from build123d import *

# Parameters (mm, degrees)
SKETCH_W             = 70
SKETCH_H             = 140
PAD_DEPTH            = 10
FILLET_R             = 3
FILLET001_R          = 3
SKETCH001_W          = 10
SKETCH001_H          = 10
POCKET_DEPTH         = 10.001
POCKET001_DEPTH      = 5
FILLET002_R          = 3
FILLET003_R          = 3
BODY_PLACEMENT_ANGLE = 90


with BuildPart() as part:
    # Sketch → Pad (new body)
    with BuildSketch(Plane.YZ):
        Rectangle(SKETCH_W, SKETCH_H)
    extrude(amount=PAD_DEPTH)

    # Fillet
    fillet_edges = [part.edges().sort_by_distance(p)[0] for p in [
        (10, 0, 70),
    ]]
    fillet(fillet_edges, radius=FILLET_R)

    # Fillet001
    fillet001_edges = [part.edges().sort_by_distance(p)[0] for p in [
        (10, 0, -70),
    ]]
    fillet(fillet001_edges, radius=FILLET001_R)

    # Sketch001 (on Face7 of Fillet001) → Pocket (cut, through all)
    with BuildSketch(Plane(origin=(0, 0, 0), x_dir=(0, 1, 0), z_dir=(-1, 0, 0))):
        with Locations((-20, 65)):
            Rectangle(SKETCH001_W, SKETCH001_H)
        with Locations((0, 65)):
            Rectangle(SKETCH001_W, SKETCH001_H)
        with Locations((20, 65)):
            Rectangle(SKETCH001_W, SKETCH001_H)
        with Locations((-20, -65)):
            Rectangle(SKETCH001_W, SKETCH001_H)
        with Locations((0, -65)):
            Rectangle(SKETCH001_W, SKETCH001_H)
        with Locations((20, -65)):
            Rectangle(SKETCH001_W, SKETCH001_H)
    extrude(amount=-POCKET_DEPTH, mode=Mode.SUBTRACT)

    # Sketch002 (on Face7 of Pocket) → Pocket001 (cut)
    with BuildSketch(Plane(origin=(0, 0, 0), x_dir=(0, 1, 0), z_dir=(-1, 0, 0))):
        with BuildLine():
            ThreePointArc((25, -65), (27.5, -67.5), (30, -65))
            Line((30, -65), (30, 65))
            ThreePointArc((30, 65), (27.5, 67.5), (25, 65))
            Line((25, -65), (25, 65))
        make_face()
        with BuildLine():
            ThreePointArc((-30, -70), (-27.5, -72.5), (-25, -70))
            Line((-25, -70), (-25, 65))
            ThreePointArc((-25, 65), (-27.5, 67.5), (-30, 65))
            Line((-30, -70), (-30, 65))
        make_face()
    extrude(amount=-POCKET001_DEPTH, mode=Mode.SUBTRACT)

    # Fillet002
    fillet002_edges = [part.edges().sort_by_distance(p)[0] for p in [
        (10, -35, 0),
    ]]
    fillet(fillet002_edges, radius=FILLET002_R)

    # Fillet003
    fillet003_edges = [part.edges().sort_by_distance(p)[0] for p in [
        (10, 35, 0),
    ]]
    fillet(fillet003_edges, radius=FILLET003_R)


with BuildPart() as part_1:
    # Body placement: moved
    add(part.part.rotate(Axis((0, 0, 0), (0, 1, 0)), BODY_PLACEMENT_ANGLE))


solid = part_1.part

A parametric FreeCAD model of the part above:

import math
import FreeCAD as App
import Part
import Sketcher
from FreeCAD import Vector
Q = App.Units.Quantity


def edges_at(feature, points):
    """Names of the edges that pass closest to the given points."""
    edges = feature.Shape.Edges
    near = lambda p: min(range(len(edges)), key=lambda i: edges[i].distToShape(Part.Vertex(*p))[0])
    return sorted({f"Edge{near(p) + 1}" for p in points})

doc = App.newDocument("Part")
params = doc.addObject("Spreadsheet::Sheet", "Params")
for row, (alias, value) in enumerate([
    ("sketch1_width", "70 mm"),
    ("sketch1_height", "140 mm"),
    ("pad1_length", "10 mm"),
    ("fillet_radius", "3 mm"),
    ("fillet2_radius", "3 mm"),
    ("sketch2_width", "10 mm"),
    ("sketch3_radius", "2.5 mm"),
    ("sketch3_height", "130 mm"),
    ("sketch3_height2", "135 mm"),
    ("pocket2_length", "5 mm"),
    ("fillet3_radius", "3 mm"),
    ("fillet4_radius", "3 mm"),
], start=1):
    params.set(f"A{row}", alias)
    params.set(f"B{row}", "=" + value)
    params.setAlias(f"B{row}", alias)

body = doc.addObject("PartDesign::Body", "Body")

sketch1 = body.newObject("Sketcher::SketchObject", "Sketch")
sketch1.AttachmentSupport = (doc.getObject("YZ_Plane"), [""])
sketch1.MapMode = "FlatFace"
sketch1.addGeometry(Part.LineSegment(Vector(-35, 70, 0), Vector(-35, -70, 0)), False)
sketch1.addGeometry(Part.LineSegment(Vector(-35, -70, 0), Vector(35, -70, 0)), False)
sketch1.addGeometry(Part.LineSegment(Vector(35, -70, 0), Vector(35, 70, 0)), False)
sketch1.addGeometry(Part.LineSegment(Vector(35, 70, 0), Vector(-35, 70, 0)), False)
sketch1.addConstraint(Sketcher.Constraint("Coincident", 0, 2, 1, 1))
sketch1.addConstraint(Sketcher.Constraint("Coincident", 1, 2, 2, 1))
sketch1.addConstraint(Sketcher.Constraint("Coincident", 2, 2, 3, 1))
sketch1.addConstraint(Sketcher.Constraint("Coincident", 3, 2, 0, 1))
sketch1.addConstraint(Sketcher.Constraint("Vertical", 0))
sketch1.addConstraint(Sketcher.Constraint("Horizontal", 1))
sketch1.addConstraint(Sketcher.Constraint("Vertical", 2))
sketch1.addConstraint(Sketcher.Constraint("Horizontal", 3))
sketch1.addConstraint(Sketcher.Constraint("Symmetric", 0, 2, 2, 2, -1, 1))
sketch1.addConstraint(Sketcher.Constraint("DistanceX", 1, 1, 1, 2, Q("70 mm")))
sketch1.addConstraint(Sketcher.Constraint("DistanceY", 0, 2, 0, 1, Q("140 mm")))
sketch1.setExpression("Constraints[9]", "Params.sketch1_width")
sketch1.setExpression("Constraints[10]", "Params.sketch1_height")
pad1 = body.newObject("PartDesign::Pad", "Pad")
pad1.Profile = sketch1
pad1.setExpression("Length", "Params.pad1_length")
doc.recompute()

fillet = body.newObject("PartDesign::Fillet", "Fillet")
fillet.Base = (pad1, edges_at(pad1, [(10, 0, 70)]))
fillet.setExpression("Radius", "Params.fillet_radius")
doc.recompute()

fillet2 = body.newObject("PartDesign::Fillet", "Fillet001")
fillet2.Base = (fillet, edges_at(fillet, [(10, 0, -70)]))
fillet2.setExpression("Radius", "Params.fillet2_radius")

sketch2 = body.newObject("Sketcher::SketchObject", "Sketch001")
sketch2.AttachmentSupport = (doc.getObject("YZ_Plane"), [""])
sketch2.MapMode = "FlatFace"
sketch2.addGeometry(Part.LineSegment(Vector(-25, -70, 0), Vector(-25, -60, 0)), False)
sketch2.addGeometry(Part.LineSegment(Vector(-25, -60, 0), Vector(-15, -60, 0)), False)
sketch2.addGeometry(Part.LineSegment(Vector(-15, -60, 0), Vector(-15, -70, 0)), False)
sketch2.addGeometry(Part.LineSegment(Vector(-15, -70, 0), Vector(-25, -70, 0)), False)
sketch2.addGeometry(Part.LineSegment(Vector(-5, -70, 0), Vector(-5, -60, 0)), False)
sketch2.addGeometry(Part.LineSegment(Vector(-5, -60, 0), Vector(5, -60, 0)), False)
sketch2.addGeometry(Part.LineSegment(Vector(5, -60, 0), Vector(5, -70, 0)), False)
sketch2.addGeometry(Part.LineSegment(Vector(5, -70, 0), Vector(-5, -70, 0)), False)
sketch2.addGeometry(Part.LineSegment(Vector(15, -70, 0), Vector(15, -60, 0)), False)
sketch2.addGeometry(Part.LineSegment(Vector(15, -60, 0), Vector(25, -60, 0)), False)
sketch2.addGeometry(Part.LineSegment(Vector(25, -60, 0), Vector(25, -70, 0)), False)
sketch2.addGeometry(Part.LineSegment(Vector(25, -70, 0), Vector(15, -70, 0)), False)
sketch2.addGeometry(Part.LineSegment(Vector(-25, 60, 0), Vector(-25, 70, 0)), False)
sketch2.addGeometry(Part.LineSegment(Vector(-25, 70, 0), Vector(-15, 70, 0)), False)
sketch2.addGeometry(Part.LineSegment(Vector(-15, 70, 0), Vector(-15, 60, 0)), False)
sketch2.addGeometry(Part.LineSegment(Vector(-15, 60, 0), Vector(-25, 60, 0)), False)
sketch2.addGeometry(Part.LineSegment(Vector(-5, 60, 0), Vector(-5, 70, 0)), False)
sketch2.addGeometry(Part.LineSegment(Vector(-5, 70, 0), Vector(5, 70, 0)), False)
sketch2.addGeometry(Part.LineSegment(Vector(5, 70, 0), Vector(5, 60, 0)), False)
sketch2.addGeometry(Part.LineSegment(Vector(5, 60, 0), Vector(-5, 60, 0)), False)
sketch2.addGeometry(Part.LineSegment(Vector(15, 60, 0), Vector(15, 70, 0)), False)
sketch2.addGeometry(Part.LineSegment(Vector(15, 70, 0), Vector(25, 70, 0)), False)
sketch2.addGeometry(Part.LineSegment(Vector(25, 70, 0), Vector(25, 60, 0)), False)
sketch2.addGeometry(Part.LineSegment(Vector(25, 60, 0), Vector(15, 60, 0)), False)
sketch2.addConstraint(Sketcher.Constraint("Coincident", 0, 2, 1, 1))
sketch2.addConstraint(Sketcher.Constraint("Coincident", 1, 2, 2, 1))
sketch2.addConstraint(Sketcher.Constraint("Coincident", 2, 2, 3, 1))
sketch2.addConstraint(Sketcher.Constraint("Coincident", 3, 2, 0, 1))
sketch2.addConstraint(Sketcher.Constraint("Coincident", 4, 2, 5, 1))
sketch2.addConstraint(Sketcher.Constraint("Coincident", 5, 2, 6, 1))
sketch2.addConstraint(Sketcher.Constraint("Coincident", 6, 2, 7, 1))
sketch2.addConstraint(Sketcher.Constraint("Coincident", 7, 2, 4, 1))
sketch2.addConstraint(Sketcher.Constraint("Coincident", 8, 2, 9, 1))
sketch2.addConstraint(Sketcher.Constraint("Coincident", 9, 2, 10, 1))
sketch2.addConstraint(Sketcher.Constraint("Coincident", 10, 2, 11, 1))
sketch2.addConstraint(Sketcher.Constraint("Coincident", 11, 2, 8, 1))
sketch2.addConstraint(Sketcher.Constraint("Coincident", 12, 2, 13, 1))
sketch2.addConstraint(Sketcher.Constraint("Coincident", 13, 2, 14, 1))
sketch2.addConstraint(Sketcher.Constraint("Coincident", 14, 2, 15, 1))
sketch2.addConstraint(Sketcher.Constraint("Coincident", 15, 2, 12, 1))
sketch2.addConstraint(Sketcher.Constraint("Coincident", 16, 2, 17, 1))
sketch2.addConstraint(Sketcher.Constraint("Coincident", 17, 2, 18, 1))
sketch2.addConstraint(Sketcher.Constraint("Coincident", 18, 2, 19, 1))
sketch2.addConstraint(Sketcher.Constraint("Coincident", 19, 2, 16, 1))
sketch2.addConstraint(Sketcher.Constraint("Coincident", 20, 2, 21, 1))
sketch2.addConstraint(Sketcher.Constraint("Coincident", 21, 2, 22, 1))
sketch2.addConstraint(Sketcher.Constraint("Coincident", 22, 2, 23, 1))
sketch2.addConstraint(Sketcher.Constraint("Coincident", 23, 2, 20, 1))
sketch2.addConstraint(Sketcher.Constraint("Vertical", 0))
sketch2.addConstraint(Sketcher.Constraint("Horizontal", 1))
sketch2.addConstraint(Sketcher.Constraint("Vertical", 2))
sketch2.addConstraint(Sketcher.Constraint("Horizontal", 3))
sketch2.addConstraint(Sketcher.Constraint("Vertical", 4))
sketch2.addConstraint(Sketcher.Constraint("Horizontal", 5))
sketch2.addConstraint(Sketcher.Constraint("Vertical", 6))
sketch2.addConstraint(Sketcher.Constraint("Horizontal", 7))
sketch2.addConstraint(Sketcher.Constraint("Vertical", 8))
sketch2.addConstraint(Sketcher.Constraint("Horizontal", 9))
sketch2.addConstraint(Sketcher.Constraint("Vertical", 10))
sketch2.addConstraint(Sketcher.Constraint("Horizontal", 11))
sketch2.addConstraint(Sketcher.Constraint("Vertical", 12))
sketch2.addConstraint(Sketcher.Constraint("Horizontal", 13))
sketch2.addConstraint(Sketcher.Constraint("Vertical", 14))
sketch2.addConstraint(Sketcher.Constraint("Horizontal", 15))
sketch2.addConstraint(Sketcher.Constraint("Vertical", 16))
sketch2.addConstraint(Sketcher.Constraint("Horizontal", 17))
sketch2.addConstraint(Sketcher.Constraint("Vertical", 18))
sketch2.addConstraint(Sketcher.Constraint("Horizontal", 19))
sketch2.addConstraint(Sketcher.Constraint("Vertical", 20))
sketch2.addConstraint(Sketcher.Constraint("Horizontal", 21))
sketch2.addConstraint(Sketcher.Constraint("Vertical", 22))
sketch2.addConstraint(Sketcher.Constraint("Horizontal", 23))
sketch2.addConstraint(Sketcher.Constraint("Symmetric", 10, 2, 12, 2, -1, 1))
sketch2.addConstraint(Sketcher.Constraint("Symmetric", 8, 2, 14, 2, -1, 1))
sketch2.addConstraint(Sketcher.Constraint("Symmetric", 6, 2, 16, 2, -1, 1))
sketch2.addConstraint(Sketcher.Constraint("Symmetric", 4, 2, 18, 2, -1, 1))
sketch2.addConstraint(Sketcher.Constraint("Symmetric", 2, 2, 20, 2, -1, 1))
sketch2.addConstraint(Sketcher.Constraint("Symmetric", 0, 2, 22, 2, -1, 1))
sketch2.addConstraint(Sketcher.Constraint("Symmetric", 1, 2, 8, 2, -2))
sketch2.addConstraint(Sketcher.Constraint("Symmetric", 3, 2, 10, 2, -2))
sketch2.addConstraint(Sketcher.Constraint("Horizontal", 1, 2, 4, 2))
sketch2.addConstraint(Sketcher.Constraint("Horizontal", 3, 2, 6, 2))
sketch2.addConstraint(Sketcher.Constraint("Vertical", 7, 2, 16, 2))
sketch2.addConstraint(Sketcher.Constraint("Equal", 3, 5))
sketch2.addConstraint(Sketcher.Constraint("Equal", 23, 0))
sketch2.addConstraint(Sketcher.Constraint("DistanceX", 1, 1, 1, 2, Q("10 mm")))
sketch2.addConstraint(Sketcher.Constraint("DistanceX", 0, 2, -1, 1, Q("25 mm")))
sketch2.addConstraint(Sketcher.Constraint("DistanceY", 0, 2, -1, 1, Q("60 mm")))
sketch2.setExpression("Constraints[61]", "Params.sketch2_width")
pocket1 = body.newObject("PartDesign::Pocket", "Pocket")
pocket1.Profile = sketch2
pocket1.Type = "ThroughAll"
pocket1.Reversed = True

sketch3 = body.newObject("Sketcher::SketchObject", "Sketch002")
sketch3.AttachmentSupport = (doc.getObject("YZ_Plane"), [""])
sketch3.MapMode = "FlatFace"
sketch3.addGeometry(Part.ArcOfCircle(Part.Circle(Vector(27.5, 65, 0), Vector(0, 0, 1), 2.5), math.radians(0), math.radians(180)), False)
sketch3.addGeometry(Part.LineSegment(Vector(30, 65, 0), Vector(30, -65, 0)), False)
sketch3.addGeometry(Part.ArcOfCircle(Part.Circle(Vector(27.5, -65, 0), Vector(0, 0, 1), 2.5), math.radians(180), math.radians(360)), False)
sketch3.addGeometry(Part.LineSegment(Vector(25, -65, 0), Vector(25, 65, 0)), False)
sketch3.addGeometry(Part.ArcOfCircle(Part.Circle(Vector(-27.5, 70, 0), Vector(0, 0, 1), 2.5), math.radians(0), math.radians(180)), False)
sketch3.addGeometry(Part.LineSegment(Vector(-25, 70, 0), Vector(-25, -65, 0)), False)
sketch3.addGeometry(Part.ArcOfCircle(Part.Circle(Vector(-27.5, -65, 0), Vector(0, 0, 1), 2.5), math.radians(180), math.radians(360)), False)
sketch3.addGeometry(Part.LineSegment(Vector(-30, -65, 0), Vector(-30, 70, 0)), False)
sketch3.addConstraint(Sketcher.Constraint("Tangent", 0, 1, 1, 1))
sketch3.addConstraint(Sketcher.Constraint("Tangent", 1, 2, 2, 2))
sketch3.addConstraint(Sketcher.Constraint("Tangent", 2, 1, 3, 1))
sketch3.addConstraint(Sketcher.Constraint("Tangent", 3, 2, 0, 2))
sketch3.addConstraint(Sketcher.Constraint("Tangent", 4, 1, 5, 1))
sketch3.addConstraint(Sketcher.Constraint("Tangent", 5, 2, 6, 2))
sketch3.addConstraint(Sketcher.Constraint("Tangent", 6, 1, 7, 1))
sketch3.addConstraint(Sketcher.Constraint("Tangent", 7, 2, 4, 2))
sketch3.addConstraint(Sketcher.Constraint("Vertical", 1))
sketch3.addConstraint(Sketcher.Constraint("Vertical", 3))
sketch3.addConstraint(Sketcher.Constraint("Vertical", 5))
sketch3.addConstraint(Sketcher.Constraint("Vertical", 7))
sketch3.addConstraint(Sketcher.Constraint("Equal", 2, 4))
sketch3.addConstraint(Sketcher.Constraint("Symmetric", 0, 3, 6, 3, -1, 1))
sketch3.addConstraint(Sketcher.Constraint("Horizontal", 2, 3, 6, 3))
sketch3.addConstraint(Sketcher.Constraint("Radius", 0, Q("2.5 mm")))
sketch3.addConstraint(Sketcher.Constraint("DistanceY", 1, 2, 1, 1, Q("130 mm")))
sketch3.addConstraint(Sketcher.Constraint("DistanceY", 5, 2, 5, 1, Q("135 mm")))
sketch3.addConstraint(Sketcher.Constraint("DistanceX", -1, 1, 0, 1, Q("30 mm")))
sketch3.setExpression("Constraints[15]", "Params.sketch3_radius")
sketch3.setExpression("Constraints[16]", "Params.sketch3_height")
sketch3.setExpression("Constraints[17]", "Params.sketch3_height2")
pocket2 = body.newObject("PartDesign::Pocket", "Pocket001")
pocket2.Profile = sketch3
pocket2.setExpression("Length", "Params.pocket2_length")
pocket2.Reversed = True
doc.recompute()

fillet3 = body.newObject("PartDesign::Fillet", "Fillet002")
fillet3.Base = (pocket2, edges_at(pocket2, [(10, -35, 0)]))
fillet3.setExpression("Radius", "Params.fillet3_radius")
doc.recompute()

fillet4 = body.newObject("PartDesign::Fillet", "Fillet003")
fillet4.Base = (fillet3, edges_at(fillet3, [(10, 35, 0)]))
fillet4.setExpression("Radius", "Params.fillet4_radius")
body2 = doc.addObject("PartDesign::Body", "Body001")
doc.recompute()

body.Placement = App.Placement(Vector(0, 0, 0), App.Rotation(Vector(0, 1, 0), 90))
boolean = body2.newObject("PartDesign::Boolean", "Boolean")
boolean.Type = "Fuse"
boolean.addObjects([body])

doc.recompute()
